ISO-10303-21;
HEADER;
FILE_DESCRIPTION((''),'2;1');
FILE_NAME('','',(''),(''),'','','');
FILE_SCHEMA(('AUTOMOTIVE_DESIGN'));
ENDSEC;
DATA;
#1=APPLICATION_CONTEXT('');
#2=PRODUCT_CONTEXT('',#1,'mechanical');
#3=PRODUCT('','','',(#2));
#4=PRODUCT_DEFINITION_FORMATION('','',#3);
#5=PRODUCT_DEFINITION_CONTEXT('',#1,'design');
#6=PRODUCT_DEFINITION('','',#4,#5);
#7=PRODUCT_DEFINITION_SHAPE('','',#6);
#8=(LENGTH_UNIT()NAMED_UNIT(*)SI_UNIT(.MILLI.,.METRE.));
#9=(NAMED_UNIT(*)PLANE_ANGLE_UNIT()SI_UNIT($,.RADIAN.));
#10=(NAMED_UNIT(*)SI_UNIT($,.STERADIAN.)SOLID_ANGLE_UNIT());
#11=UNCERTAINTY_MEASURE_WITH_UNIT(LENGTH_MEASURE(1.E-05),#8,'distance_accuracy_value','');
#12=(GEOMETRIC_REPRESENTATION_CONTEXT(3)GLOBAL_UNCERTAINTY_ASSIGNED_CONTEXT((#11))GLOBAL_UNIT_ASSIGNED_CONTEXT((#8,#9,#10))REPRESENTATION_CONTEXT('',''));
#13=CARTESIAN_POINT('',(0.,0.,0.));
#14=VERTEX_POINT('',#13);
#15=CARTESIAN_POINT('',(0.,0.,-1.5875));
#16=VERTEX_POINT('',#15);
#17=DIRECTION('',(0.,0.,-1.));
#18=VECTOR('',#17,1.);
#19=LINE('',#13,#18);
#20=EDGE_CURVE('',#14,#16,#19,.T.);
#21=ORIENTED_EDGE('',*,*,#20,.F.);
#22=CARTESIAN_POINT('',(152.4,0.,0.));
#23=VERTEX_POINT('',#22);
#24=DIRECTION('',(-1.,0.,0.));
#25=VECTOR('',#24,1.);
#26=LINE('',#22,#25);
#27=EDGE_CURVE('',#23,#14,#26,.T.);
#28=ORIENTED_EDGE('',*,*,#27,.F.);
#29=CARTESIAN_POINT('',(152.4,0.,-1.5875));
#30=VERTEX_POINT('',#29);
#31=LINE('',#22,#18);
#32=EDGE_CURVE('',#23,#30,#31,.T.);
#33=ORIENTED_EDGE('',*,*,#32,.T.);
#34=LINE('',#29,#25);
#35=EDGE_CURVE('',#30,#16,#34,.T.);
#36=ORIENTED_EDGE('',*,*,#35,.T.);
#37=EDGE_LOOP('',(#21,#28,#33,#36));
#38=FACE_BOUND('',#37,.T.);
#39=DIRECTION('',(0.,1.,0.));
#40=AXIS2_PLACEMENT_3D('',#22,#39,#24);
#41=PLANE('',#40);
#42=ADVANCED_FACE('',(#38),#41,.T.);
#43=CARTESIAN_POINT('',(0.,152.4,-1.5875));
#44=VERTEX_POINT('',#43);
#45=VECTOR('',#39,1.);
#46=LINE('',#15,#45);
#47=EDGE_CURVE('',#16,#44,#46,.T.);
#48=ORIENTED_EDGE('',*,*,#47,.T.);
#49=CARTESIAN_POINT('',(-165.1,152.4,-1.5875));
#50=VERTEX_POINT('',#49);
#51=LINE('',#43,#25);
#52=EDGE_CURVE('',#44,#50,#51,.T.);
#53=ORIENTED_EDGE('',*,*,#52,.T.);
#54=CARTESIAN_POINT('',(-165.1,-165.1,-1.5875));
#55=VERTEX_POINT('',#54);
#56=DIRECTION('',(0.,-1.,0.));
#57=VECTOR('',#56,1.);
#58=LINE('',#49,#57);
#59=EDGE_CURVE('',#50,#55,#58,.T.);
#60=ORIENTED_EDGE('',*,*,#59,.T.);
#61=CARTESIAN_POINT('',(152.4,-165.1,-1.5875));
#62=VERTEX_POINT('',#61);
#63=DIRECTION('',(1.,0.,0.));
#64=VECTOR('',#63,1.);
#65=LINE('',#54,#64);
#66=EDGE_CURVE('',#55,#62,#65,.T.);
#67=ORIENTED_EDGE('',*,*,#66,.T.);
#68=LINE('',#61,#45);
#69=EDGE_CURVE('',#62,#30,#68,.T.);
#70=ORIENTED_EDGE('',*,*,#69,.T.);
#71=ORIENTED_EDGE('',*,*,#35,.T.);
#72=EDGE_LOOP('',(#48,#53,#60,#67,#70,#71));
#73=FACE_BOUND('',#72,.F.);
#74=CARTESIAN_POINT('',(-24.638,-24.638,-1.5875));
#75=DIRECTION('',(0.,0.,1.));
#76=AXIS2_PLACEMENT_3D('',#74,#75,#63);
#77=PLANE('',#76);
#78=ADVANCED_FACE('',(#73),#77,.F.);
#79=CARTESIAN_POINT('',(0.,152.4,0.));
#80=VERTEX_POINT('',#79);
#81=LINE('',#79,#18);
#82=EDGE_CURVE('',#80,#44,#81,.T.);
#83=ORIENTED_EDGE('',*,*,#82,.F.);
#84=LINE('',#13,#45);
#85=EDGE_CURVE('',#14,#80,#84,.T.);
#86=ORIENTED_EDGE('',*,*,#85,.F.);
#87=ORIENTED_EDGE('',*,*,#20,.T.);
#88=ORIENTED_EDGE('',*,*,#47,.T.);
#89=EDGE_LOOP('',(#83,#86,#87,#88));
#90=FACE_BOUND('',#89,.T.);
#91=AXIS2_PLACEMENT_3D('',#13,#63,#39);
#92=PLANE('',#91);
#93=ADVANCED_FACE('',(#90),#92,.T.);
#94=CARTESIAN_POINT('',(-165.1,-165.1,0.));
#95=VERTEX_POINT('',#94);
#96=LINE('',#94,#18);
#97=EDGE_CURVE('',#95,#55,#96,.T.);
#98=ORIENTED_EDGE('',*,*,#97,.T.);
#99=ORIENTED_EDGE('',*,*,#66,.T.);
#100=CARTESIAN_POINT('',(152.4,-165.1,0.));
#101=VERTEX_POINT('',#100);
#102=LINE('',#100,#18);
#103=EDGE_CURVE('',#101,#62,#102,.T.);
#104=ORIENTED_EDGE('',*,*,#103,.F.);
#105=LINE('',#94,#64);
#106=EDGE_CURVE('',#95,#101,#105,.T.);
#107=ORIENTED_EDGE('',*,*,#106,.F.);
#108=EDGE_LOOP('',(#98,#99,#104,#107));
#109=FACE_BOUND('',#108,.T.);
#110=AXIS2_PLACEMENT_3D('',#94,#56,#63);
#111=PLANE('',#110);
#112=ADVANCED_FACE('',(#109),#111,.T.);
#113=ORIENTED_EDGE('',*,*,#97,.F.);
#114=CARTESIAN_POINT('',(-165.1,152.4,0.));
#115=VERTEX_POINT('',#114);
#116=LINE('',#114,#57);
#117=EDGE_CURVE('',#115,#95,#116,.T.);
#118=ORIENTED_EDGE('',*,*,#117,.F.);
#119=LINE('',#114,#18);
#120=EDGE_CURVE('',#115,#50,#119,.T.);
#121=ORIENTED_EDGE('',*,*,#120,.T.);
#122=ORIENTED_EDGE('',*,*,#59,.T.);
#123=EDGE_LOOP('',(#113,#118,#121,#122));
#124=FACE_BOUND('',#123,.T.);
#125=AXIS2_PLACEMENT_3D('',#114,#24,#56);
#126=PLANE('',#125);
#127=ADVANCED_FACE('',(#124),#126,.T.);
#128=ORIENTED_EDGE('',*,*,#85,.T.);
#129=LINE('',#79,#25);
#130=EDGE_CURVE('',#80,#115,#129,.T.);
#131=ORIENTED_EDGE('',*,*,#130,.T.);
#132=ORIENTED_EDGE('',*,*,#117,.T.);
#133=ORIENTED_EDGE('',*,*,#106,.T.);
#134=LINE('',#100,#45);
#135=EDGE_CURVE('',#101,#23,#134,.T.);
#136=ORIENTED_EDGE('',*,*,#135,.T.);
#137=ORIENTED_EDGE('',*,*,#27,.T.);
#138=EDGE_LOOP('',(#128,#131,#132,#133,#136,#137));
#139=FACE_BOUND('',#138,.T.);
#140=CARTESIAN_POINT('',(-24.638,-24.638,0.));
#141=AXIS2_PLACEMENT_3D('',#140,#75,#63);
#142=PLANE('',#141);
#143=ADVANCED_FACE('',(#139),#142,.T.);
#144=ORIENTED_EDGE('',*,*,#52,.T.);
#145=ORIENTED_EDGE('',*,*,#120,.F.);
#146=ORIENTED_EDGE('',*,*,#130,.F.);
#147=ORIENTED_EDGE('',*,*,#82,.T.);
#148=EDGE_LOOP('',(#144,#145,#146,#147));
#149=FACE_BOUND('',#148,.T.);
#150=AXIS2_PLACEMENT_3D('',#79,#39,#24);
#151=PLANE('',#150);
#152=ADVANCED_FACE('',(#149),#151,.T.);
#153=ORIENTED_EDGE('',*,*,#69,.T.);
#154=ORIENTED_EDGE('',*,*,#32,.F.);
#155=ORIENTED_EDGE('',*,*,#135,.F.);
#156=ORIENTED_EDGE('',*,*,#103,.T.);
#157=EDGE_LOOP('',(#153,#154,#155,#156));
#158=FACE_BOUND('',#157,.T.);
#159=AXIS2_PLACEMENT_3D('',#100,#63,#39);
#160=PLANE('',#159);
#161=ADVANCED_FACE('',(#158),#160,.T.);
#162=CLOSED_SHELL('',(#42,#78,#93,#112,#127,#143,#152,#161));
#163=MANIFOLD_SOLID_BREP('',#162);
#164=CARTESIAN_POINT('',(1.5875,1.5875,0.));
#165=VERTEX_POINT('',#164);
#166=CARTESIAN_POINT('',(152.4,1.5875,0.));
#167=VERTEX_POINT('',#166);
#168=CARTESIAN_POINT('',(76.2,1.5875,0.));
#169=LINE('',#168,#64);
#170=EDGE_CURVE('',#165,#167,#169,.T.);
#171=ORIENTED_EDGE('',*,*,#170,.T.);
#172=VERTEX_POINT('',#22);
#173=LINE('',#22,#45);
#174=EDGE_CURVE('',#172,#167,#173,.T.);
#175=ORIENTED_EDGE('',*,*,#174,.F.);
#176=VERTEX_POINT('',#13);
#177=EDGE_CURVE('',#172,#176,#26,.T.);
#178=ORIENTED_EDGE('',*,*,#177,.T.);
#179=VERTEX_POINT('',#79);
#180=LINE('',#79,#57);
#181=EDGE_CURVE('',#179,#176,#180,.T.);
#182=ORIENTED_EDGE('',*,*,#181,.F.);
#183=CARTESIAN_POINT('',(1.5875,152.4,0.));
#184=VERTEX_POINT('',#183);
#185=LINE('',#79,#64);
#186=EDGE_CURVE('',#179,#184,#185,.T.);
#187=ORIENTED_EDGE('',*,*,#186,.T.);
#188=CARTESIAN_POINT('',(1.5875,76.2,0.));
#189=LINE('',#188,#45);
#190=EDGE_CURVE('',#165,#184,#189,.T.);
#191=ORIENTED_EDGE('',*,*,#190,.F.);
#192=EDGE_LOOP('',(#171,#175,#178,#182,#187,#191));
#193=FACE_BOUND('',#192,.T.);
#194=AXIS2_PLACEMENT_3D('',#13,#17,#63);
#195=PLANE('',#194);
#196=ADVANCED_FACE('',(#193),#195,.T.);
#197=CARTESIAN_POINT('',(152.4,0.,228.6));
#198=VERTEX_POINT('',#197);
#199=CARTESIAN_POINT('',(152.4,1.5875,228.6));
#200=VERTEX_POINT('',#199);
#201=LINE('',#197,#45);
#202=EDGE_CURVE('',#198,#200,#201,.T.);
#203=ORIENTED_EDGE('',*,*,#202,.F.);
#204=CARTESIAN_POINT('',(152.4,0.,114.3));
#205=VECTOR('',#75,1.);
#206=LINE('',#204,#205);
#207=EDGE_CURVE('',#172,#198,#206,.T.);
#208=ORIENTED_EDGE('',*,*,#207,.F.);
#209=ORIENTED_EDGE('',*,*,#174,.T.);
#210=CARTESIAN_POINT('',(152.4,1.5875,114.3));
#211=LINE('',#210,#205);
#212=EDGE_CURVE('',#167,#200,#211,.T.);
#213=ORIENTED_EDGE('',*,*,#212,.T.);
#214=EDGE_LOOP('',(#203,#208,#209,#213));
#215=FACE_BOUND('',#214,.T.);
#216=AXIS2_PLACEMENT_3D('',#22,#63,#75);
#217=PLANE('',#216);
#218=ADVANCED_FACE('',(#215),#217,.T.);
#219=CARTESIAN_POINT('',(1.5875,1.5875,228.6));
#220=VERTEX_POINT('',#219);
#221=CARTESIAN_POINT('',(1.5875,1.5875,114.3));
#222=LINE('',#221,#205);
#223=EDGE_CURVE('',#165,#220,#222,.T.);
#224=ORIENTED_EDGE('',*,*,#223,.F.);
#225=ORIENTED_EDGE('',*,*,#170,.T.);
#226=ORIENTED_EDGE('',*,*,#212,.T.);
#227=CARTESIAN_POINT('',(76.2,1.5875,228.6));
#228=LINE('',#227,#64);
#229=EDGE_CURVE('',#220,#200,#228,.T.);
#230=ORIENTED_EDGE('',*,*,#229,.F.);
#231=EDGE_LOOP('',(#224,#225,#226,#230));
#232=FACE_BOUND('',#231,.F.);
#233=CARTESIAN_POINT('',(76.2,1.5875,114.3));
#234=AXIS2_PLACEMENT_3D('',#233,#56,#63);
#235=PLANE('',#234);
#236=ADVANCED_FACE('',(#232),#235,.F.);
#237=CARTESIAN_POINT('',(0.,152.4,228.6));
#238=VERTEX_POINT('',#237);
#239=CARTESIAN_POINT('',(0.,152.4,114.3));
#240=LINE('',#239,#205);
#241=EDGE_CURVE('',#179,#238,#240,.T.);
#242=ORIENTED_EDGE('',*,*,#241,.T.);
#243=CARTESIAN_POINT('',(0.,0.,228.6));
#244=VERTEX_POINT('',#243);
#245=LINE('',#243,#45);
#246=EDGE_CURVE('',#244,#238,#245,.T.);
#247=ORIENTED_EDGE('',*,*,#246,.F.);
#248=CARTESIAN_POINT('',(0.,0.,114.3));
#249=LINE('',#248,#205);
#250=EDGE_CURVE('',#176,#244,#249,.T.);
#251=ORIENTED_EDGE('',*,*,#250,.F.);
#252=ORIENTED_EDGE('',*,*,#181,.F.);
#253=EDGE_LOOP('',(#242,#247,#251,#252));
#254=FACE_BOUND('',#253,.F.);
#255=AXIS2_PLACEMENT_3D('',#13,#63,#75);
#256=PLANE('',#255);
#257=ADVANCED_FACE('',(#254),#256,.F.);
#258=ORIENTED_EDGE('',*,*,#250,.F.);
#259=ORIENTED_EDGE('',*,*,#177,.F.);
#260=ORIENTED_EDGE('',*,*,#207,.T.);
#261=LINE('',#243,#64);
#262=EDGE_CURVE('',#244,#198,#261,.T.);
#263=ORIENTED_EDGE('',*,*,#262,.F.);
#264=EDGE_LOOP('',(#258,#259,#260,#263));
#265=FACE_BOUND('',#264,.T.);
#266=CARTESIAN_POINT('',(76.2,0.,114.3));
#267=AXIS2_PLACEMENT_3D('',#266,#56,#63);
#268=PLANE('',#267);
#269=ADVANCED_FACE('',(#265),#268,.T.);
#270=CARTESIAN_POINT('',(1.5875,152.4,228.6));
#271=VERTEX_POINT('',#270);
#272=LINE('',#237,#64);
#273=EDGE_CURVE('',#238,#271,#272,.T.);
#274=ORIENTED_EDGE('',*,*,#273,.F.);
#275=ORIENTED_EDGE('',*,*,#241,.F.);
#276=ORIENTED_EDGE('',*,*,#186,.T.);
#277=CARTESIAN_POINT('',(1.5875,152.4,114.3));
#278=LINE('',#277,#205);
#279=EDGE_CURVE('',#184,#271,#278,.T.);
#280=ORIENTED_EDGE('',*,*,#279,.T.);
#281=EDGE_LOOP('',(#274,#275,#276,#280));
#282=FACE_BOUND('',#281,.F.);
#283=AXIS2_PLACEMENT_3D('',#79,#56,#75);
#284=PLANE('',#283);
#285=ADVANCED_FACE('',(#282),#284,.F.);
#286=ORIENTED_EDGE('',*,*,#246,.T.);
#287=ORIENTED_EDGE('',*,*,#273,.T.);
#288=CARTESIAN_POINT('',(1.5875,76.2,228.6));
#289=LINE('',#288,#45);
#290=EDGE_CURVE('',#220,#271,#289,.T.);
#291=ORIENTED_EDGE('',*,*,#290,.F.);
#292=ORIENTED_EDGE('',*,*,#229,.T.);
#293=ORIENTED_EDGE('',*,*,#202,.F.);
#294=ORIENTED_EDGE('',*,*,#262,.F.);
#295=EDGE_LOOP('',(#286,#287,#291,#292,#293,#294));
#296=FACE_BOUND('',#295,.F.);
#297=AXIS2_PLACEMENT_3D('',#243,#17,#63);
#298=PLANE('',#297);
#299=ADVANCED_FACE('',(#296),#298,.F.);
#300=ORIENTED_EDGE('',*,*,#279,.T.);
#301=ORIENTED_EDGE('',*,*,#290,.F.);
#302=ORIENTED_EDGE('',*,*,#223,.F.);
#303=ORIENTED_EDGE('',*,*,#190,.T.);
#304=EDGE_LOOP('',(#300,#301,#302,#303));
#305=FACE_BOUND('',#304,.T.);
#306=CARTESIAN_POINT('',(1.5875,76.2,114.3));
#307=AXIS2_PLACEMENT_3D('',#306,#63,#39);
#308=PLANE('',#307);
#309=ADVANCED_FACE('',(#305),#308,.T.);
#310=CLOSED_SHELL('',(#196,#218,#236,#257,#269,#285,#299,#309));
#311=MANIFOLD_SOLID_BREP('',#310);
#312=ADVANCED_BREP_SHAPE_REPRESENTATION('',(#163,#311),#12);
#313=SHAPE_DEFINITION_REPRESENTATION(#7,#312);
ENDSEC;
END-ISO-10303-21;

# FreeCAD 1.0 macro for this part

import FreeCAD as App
import Part
import Sketcher

V = App.Vector
Q = App.Units.Quantity

doc = App.newDocument("Part")
body = doc.addObject("PartDesign::Body", "Body")

sketch1 = doc.addObject("Sketcher::SketchObject", "Sketch")
body.addObject(sketch1)
sketch1.AttachmentSupport = (doc.XZ_Plane, [""])
sketch1.MapMode = "FlatFace"
sketch1.addGeometry(Part.LineSegment(V(0, 229, 0), V(0, 0, 0)), False)
sketch1.addGeometry(Part.LineSegment(V(0, 0, 0), V(152, 0, 0)), False)
sketch1.addGeometry(Part.LineSegment(V(152, 0, 0), V(152, 229, 0)), False)
sketch1.addGeometry(Part.LineSegment(V(152, 229, 0), V(0, 229, 0)), False)
sketch1.addConstraint(Sketcher.Constraint("Coincident", 0, 2, 1, 1))
sketch1.addConstraint(Sketcher.Constraint("Coincident", 1, 2, 2, 1))
sketch1.addConstraint(Sketcher.Constraint("Coincident", 2, 2, 3, 1))
sketch1.addConstraint(Sketcher.Constraint("Coincident", 3, 2, 0, 1))
sketch1.addConstraint(Sketcher.Constraint("Vertical", 0))
sketch1.addConstraint(Sketcher.Constraint("Horizontal", 1))
sketch1.addConstraint(Sketcher.Constraint("Vertical", 2))
sketch1.addConstraint(Sketcher.Constraint("Horizontal", 3))
sketch1.addConstraint(Sketcher.Constraint("Coincident", 0, 2, -1, 1))
sketch1.addConstraint(Sketcher.Constraint("DistanceX", 1, 1, 1, 2, Q("6 in")))
sketch1.addConstraint(Sketcher.Constraint("DistanceY", 0, 2, 0, 1, Q("9 in")))
pad1 = doc.addObject("PartDesign::Pad", "Pad")
body.addObject(pad1)
pad1.Profile = sketch1
pad1.Length = Q("0.0625 in")
pad1.Reversed = True

sketch2 = doc.addObject("Sketcher::SketchObject", "Sketch001")
body.addObject(sketch2)
sketch2.AttachmentSupport = (doc.YZ_Plane, [""])
sketch2.MapMode = "FlatFace"
sketch2.addGeometry(Part.LineSegment(V(0, 229, 0), V(0, 0, 0)), False)
sketch2.addGeometry(Part.LineSegment(V(0, 0, 0), V(152, 0, 0)), False)
sketch2.addGeometry(Part.LineSegment(V(152, 0, 0), V(152, 229, 0)), False)
sketch2.addGeometry(Part.LineSegment(V(152, 229, 0), V(0, 229, 0)), False)
sketch2.addConstraint(Sketcher.Constraint("Coincident", 0, 2, 1, 1))
sketch2.addConstraint(Sketcher.Constraint("Coincident", 1, 2, 2, 1))
sketch2.addConstraint(Sketcher.Constraint("Coincident", 2, 2, 3, 1))
sketch2.addConstraint(Sketcher.Constraint("Coincident", 3, 2, 0, 1))
sketch2.addConstraint(Sketcher.Constraint("Vertical", 0))
sketch2.addConstraint(Sketcher.Constraint("Horizontal", 1))
sketch2.addConstraint(Sketcher.Constraint("Vertical", 2))
sketch2.addConstraint(Sketcher.Constraint("Horizontal", 3))
sketch2.addConstraint(Sketcher.Constraint("Coincident", 0, 2, -1, 1))
sketch2.addConstraint(Sketcher.Constraint("DistanceX", 1, 1, 1, 2, Q("6 in")))
sketch2.addConstraint(Sketcher.Constraint("DistanceY", 0, 2, 0, 1, Q("9 in")))
pad2 = doc.addObject("PartDesign::Pad", "Pad001")
body.addObject(pad2)
pad2.Profile = sketch2
pad2.Length = Q("0.0625 in")
body2 = doc.addObject("PartDesign::Body", "Body001")

sketch3 = doc.addObject("Sketcher::SketchObject", "Sketch002")
body2.addObject(sketch3)
sketch3.AttachmentSupport = (doc.getObject("XY_Plane001"), [""])
sketch3.MapMode = "FlatFace"
sketch3.addGeometry(Part.LineSegment(V(152, 0, 0), V(0, 0, 0)), False)
sketch3.addGeometry(Part.LineSegment(V(0, 0, 0), V(0, 152, 0)), False)
sketch3.addGeometry(Part.LineSegment(V(0, 152, 0), V(-165, 152, 0)), False)
sketch3.addGeometry(Part.LineSegment(V(-165, 152, 0), V(-165, -165, 0)), False)
sketch3.addGeometry(Part.LineSegment(V(-165, -165, 0), V(152, -165, 0)), False)
sketch3.addGeometry(Part.LineSegment(V(152, -165, 0), V(152, 0, 0)), False)
sketch3.addConstraint(Sketcher.Constraint("Coincident", 0, 2, 1, 1))
sketch3.addConstraint(Sketcher.Constraint("Coincident", 1, 2, 2, 1))
sketch3.addConstraint(Sketcher.Constraint("Coincident", 2, 2, 3, 1))
sketch3.addConstraint(Sketcher.Constraint("Coincident", 3, 2, 4, 1))
sketch3.addConstraint(Sketcher.Constraint("Coincident", 4, 2, 5, 1))
sketch3.addConstraint(Sketcher.Constraint("Coincident", 5, 2, 0, 1))
sketch3.addConstraint(Sketcher.Constraint("Horizontal", 0))
sketch3.addConstraint(Sketcher.Constraint("Vertical", 1))
sketch3.addConstraint(Sketcher.Constraint("Horizontal", 2))
sketch3.addConstraint(Sketcher.Constraint("Vertical", 3))
sketch3.addConstraint(Sketcher.Constraint("Horizontal", 4))
sketch3.addConstraint(Sketcher.Constraint("Vertical", 5))
sketch3.addConstraint(Sketcher.Constraint("Coincident", 0, 2, -1, 1))
sketch3.addConstraint(Sketcher.Constraint("Equal", 0, 1))
sketch3.addConstraint(Sketcher.Constraint("Equal", 4, 3))
sketch3.addConstraint(Sketcher.Constraint("DistanceX", 0, 2, 0, 1, Q("6 in")))
sketch3.addConstraint(Sketcher.Constraint("DistanceX", 2, 2, 2, 1, Q("6.5 in")))
pad3 = doc.addObject("PartDesign::Pad", "Pad002")
body2.addObject(pad3)
pad3.Profile = sketch3
pad3.Length = Q("0.0625 in")
pad3.Reversed = True

doc.recompute()
